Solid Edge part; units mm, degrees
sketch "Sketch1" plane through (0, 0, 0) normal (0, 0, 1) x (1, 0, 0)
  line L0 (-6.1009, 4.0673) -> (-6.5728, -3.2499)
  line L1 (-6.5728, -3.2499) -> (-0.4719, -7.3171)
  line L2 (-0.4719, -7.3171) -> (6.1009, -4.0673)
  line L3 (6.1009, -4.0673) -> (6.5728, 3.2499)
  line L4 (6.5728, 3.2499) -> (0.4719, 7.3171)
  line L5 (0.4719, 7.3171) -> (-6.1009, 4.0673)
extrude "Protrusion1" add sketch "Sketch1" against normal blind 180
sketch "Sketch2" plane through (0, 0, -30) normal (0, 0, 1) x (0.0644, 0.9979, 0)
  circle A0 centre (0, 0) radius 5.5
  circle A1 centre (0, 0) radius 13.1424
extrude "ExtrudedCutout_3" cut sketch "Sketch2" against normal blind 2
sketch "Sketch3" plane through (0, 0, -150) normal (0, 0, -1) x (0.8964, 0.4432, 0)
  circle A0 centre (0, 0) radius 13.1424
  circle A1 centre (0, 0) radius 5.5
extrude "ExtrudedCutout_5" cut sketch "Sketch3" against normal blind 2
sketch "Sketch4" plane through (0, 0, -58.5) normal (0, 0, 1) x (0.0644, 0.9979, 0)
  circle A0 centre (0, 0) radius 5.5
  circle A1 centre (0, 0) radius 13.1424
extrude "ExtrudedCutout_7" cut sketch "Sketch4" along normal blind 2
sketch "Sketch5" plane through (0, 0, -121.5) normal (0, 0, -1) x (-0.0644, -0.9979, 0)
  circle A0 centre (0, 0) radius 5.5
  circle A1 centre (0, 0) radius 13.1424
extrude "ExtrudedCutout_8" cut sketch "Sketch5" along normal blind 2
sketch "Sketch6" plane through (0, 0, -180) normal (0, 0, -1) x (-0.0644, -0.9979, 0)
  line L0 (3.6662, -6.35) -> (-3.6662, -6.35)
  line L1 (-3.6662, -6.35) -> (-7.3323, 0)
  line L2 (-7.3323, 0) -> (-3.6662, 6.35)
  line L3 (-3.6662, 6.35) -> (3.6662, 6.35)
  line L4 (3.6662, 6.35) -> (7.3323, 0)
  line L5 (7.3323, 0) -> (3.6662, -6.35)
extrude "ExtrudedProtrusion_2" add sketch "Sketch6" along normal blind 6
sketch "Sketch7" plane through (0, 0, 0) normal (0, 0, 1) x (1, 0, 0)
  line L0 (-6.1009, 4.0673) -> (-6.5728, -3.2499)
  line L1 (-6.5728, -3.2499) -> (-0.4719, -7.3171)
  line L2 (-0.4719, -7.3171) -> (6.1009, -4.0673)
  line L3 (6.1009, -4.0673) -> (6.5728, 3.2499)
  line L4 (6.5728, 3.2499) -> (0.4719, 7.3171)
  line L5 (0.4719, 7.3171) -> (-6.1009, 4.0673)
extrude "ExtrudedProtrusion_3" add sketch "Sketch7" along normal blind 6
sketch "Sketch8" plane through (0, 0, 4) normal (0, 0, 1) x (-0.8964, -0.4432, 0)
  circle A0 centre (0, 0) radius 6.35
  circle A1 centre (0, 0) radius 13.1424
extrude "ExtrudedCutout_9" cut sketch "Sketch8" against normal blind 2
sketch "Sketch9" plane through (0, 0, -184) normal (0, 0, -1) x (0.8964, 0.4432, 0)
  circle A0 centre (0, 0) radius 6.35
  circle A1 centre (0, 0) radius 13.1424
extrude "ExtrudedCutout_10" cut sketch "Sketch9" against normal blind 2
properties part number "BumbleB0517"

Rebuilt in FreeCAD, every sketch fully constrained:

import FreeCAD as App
import Part
import Sketcher

V = App.Vector
Q = App.Units.Quantity


def add_polygon(sketch, points):
    """Adds a closed chain of lines whose ends are joined by coincident constraints."""
    first, n = sketch.GeometryCount, len(points)
    for a, b in zip(points, points[1:] + points[:1]):
        sketch.addGeometry(Part.LineSegment(App.Vector(*a, 0), App.Vector(*b, 0)), False)
    for i in range(n):
        sketch.addConstraint(Sketcher.Constraint("Coincident", first + i, 2, first + (i + 1) % n, 1))

doc = App.newDocument("Part")
body = doc.addObject("PartDesign::Body", "Body")

# Sketch on XY plane
sketch1 = body.newObject("Sketcher::SketchObject", "Sketch")
sketch1.AttachmentSupport = (doc.getObject("XY_Plane"), [""])
sketch1.MapMode = "FlatFace"
add_polygon(sketch1, [(0, 7), (-6, 4), (-7, -3), (0, -7), (6, -4), (7, 3)])  # lines 0-5
sketch1.addConstraint(Sketcher.Constraint("Symmetric", 0, 2, 3, 2, -1, 1))
sketch1.addConstraint(Sketcher.Constraint("Symmetric", 1, 2, 4, 2, -1, 1))
sketch1.addConstraint(Sketcher.Constraint("Symmetric", 2, 2, 5, 2, -1, 1))
sketch1.addConstraint(Sketcher.Constraint("Equal", 0, 1))
sketch1.addConstraint(Sketcher.Constraint("Equal", 1, 2))
sketch1.addConstraint(Sketcher.Constraint("Angle", 0, Q("-153.6908 deg")))
sketch1.addConstraint(Sketcher.Constraint("Angle", 1, Q("-93.69 deg")))
sketch1.addConstraint(Sketcher.Constraint("Angle", 2, Q("-33.6896 deg")))
sketch1.addConstraint(Sketcher.Constraint("DistanceY", 1, 2, -1, 1, Q("3.25 mm")))
pad1 = body.newObject("PartDesign::Pad", "Pad")
pad1.Profile = sketch1
pad1.Length = 180
pad1.Reversed = True

# Sketch on XY plane
sketch2 = body.newObject("Sketcher::SketchObject", "Sketch001")
sketch2.AttachmentSupport = (doc.getObject("XY_Plane"), [""])
sketch2.MapMode = "FlatFace"
sketch2.AttachmentOffset = App.Placement(V(0, 0, -30), App.Rotation())
sketch2.addGeometry(Part.Circle(V(0, 0, 0), V(0, 0, 1), 13), False)
sketch2.addGeometry(Part.Circle(V(0, 0, 0), V(0, 0, 1), 6), False)
sketch2.addConstraint(Sketcher.Constraint("Coincident", 0, 3, -1, 1))
sketch2.addConstraint(Sketcher.Constraint("Coincident", 1, 3, -1, 1))
sketch2.addConstraint(Sketcher.Constraint("Diameter", 1, Q("11 mm")))
sketch2.addConstraint(Sketcher.Constraint("Diameter", 0, Q("26.2848 mm")))
pocket1 = body.newObject("PartDesign::Pocket", "Pocket")
pocket1.Profile = sketch2
pocket1.Length = 2

# Sketch on XY plane
sketch3 = body.newObject("Sketcher::SketchObject", "Sketch002")
sketch3.AttachmentSupport = (doc.getObject("XY_Plane"), [""])
sketch3.MapMode = "FlatFace"
sketch3.AttachmentOffset = App.Placement(V(0, 0, -150), App.Rotation())
sketch3.addGeometry(Part.Circle(V(0, 0, 0), V(0, 0, 1), 13), False)
sketch3.addGeometry(Part.Circle(V(0, 0, 0), V(0, 0, 1), 6), False)
sketch3.addConstraint(Sketcher.Constraint("Coincident", 0, 3, -1, 1))
sketch3.addConstraint(Sketcher.Constraint("Coincident", 1, 3, -1, 1))
sketch3.addConstraint(Sketcher.Constraint("Diameter", 1, Q("11 mm")))
sketch3.addConstraint(Sketcher.Constraint("Diameter", 0, Q("26.2848 mm")))
pocket2 = body.newObject("PartDesign::Pocket", "Pocket001")
pocket2.Profile = sketch3
pocket2.Length = 2
pocket2.Reversed = True

# Sketch on XY plane
sketch4 = body.newObject("Sketcher::SketchObject", "Sketch003")
sketch4.AttachmentSupport = (doc.getObject("XY_Plane"), [""])
sketch4.MapMode = "FlatFace"
sketch4.AttachmentOffset = App.Placement(V(0, 0, -58.5), App.Rotation())
sketch4.addGeometry(Part.Circle(V(0, 0, 0), V(0, 0, 1), 13), False)
sketch4.addGeometry(Part.Circle(V(0, 0, 0), V(0, 0, 1), 6), False)
sketch4.addConstraint(Sketcher.Constraint("Coincident", 0, 3, -1, 1))
sketch4.addConstraint(Sketcher.Constraint("Coincident", 1, 3, -1, 1))
sketch4.addConstraint(Sketcher.Constraint("Diameter", 1, Q("11 mm")))
sketch4.addConstraint(Sketcher.Constraint("Diameter", 0, Q("26.2848 mm")))
pocket3 = body.newObject("PartDesign::Pocket", "Pocket002")
pocket3.Profile = sketch4
pocket3.Length = 2
pocket3.Reversed = True

# Sketch on XY plane
sketch5 = body.newObject("Sketcher::SketchObject", "Sketch004")
sketch5.AttachmentSupport = (doc.getObject("XY_Plane"), [""])
sketch5.MapMode = "FlatFace"
sketch5.AttachmentOffset = App.Placement(V(0, 0, -121.5), App.Rotation())
sketch5.addGeometry(Part.Circle(V(0, 0, 0), V(0, 0, 1), 13), False)
sketch5.addGeometry(Part.Circle(V(0, 0, 0), V(0, 0, 1), 6), False)
sketch5.addConstraint(Sketcher.Constraint("Coincident", 0, 3, -1, 1))
sketch5.addConstraint(Sketcher.Constraint("Coincident", 1, 3, -1, 1))
sketch5.addConstraint(Sketcher.Constraint("Diameter", 1, Q("11 mm")))
sketch5.addConstraint(Sketcher.Constraint("Diameter", 0, Q("26.2848 mm")))
pocket4 = body.newObject("PartDesign::Pocket", "Pocket003")
pocket4.Profile = sketch5
pocket4.Length = 2

# Sketch on XY plane
sketch6 = body.newObject("Sketcher::SketchObject", "Sketch005")
sketch6.AttachmentSupport = (doc.getObject("XY_Plane"), [""])
sketch6.MapMode = "FlatFace"
sketch6.AttachmentOffset = App.Placement(V(0, 0, -180), App.Rotation())
add_polygon(sketch6, [(7, 3), (6, -4), (0, -7), (-7, -3), (-6, 4), (0, 7)])  # lines 0-5
sketch6.addConstraint(Sketcher.Constraint("Symmetric", 0, 2, 3, 2, -1, 1))
sketch6.addConstraint(Sketcher.Constraint("Symmetric", 1, 2, 4, 2, -1, 1))
sketch6.addConstraint(Sketcher.Constraint("Symmetric", 2, 2, 5, 2, -1, 1))
sketch6.addConstraint(Sketcher.Constraint("Equal", 0, 1))
sketch6.addConstraint(Sketcher.Constraint("Equal", 1, 2))
sketch6.addConstraint(Sketcher.Constraint("DistanceY", 1, 2, -1, 1, Q("7.317 mm")))
sketch6.addConstraint(Sketcher.Constraint("DistanceX", 2, 2, -1, 1, Q("6.573 mm")))
sketch6.addConstraint(Sketcher.Constraint("DistanceX", 1, 2, 0, 2, Q("6.573 mm")))
sketch6.addConstraint(Sketcher.Constraint("DistanceY", 0, 2, 2, 2, Q("0.818 mm")))
pad2 = body.newObject("PartDesign::Pad", "Pad001")
pad2.Profile = sketch6
pad2.Length = 6
pad2.Reversed = True

# Sketch on XY plane
sketch7 = body.newObject("Sketcher::SketchObject", "Sketch006")
sketch7.AttachmentSupport = (doc.getObject("XY_Plane"), [""])
sketch7.MapMode = "FlatFace"
add_polygon(sketch7, [(0, 7), (-6, 4), (-7, -3), (0, -7), (6, -4), (7, 3)])  # lines 0-5
sketch7.addConstraint(Sketcher.Constraint("Symmetric", 0, 2, 3, 2, -1, 1))
sketch7.addConstraint(Sketcher.Constraint("Symmetric", 1, 2, 4, 2, -1, 1))
sketch7.addConstraint(Sketcher.Constraint("Symmetric", 2, 2, 5, 2, -1, 1))
sketch7.addConstraint(Sketcher.Constraint("Equal", 0, 1))
sketch7.addConstraint(Sketcher.Constraint("Equal", 1, 2))
sketch7.addConstraint(Sketcher.Constraint("Angle", 0, Q("-153.6908 deg")))
sketch7.addConstraint(Sketcher.Constraint("Angle", 1, Q("-93.69 deg")))
sketch7.addConstraint(Sketcher.Constraint("Angle", 2, Q("-33.6896 deg")))
sketch7.addConstraint(Sketcher.Constraint("DistanceY", 1, 2, -1, 1, Q("3.25 mm")))
pad3 = body.newObject("PartDesign::Pad", "Pad002")
pad3.Profile = sketch7
pad3.Length = 6

# Sketch on XY plane
sketch8 = body.newObject("Sketcher::SketchObject", "Sketch007")
sketch8.AttachmentSupport = (doc.getObject("XY_Plane"), [""])
sketch8.MapMode = "FlatFace"
sketch8.AttachmentOffset = App.Placement(V(0, 0, 4), App.Rotation())
sketch8.addGeometry(Part.Circle(V(0, 0, 0), V(0, 0, 1), 13), False)
sketch8.addGeometry(Part.Circle(V(0, 0, 0), V(0, 0, 1), 6), False)
sketch8.addConstraint(Sketcher.Constraint("Coincident", 0, 3, -1, 1))
sketch8.addConstraint(Sketcher.Constraint("Coincident", 1, 3, -1, 1))
sketch8.addConstraint(Sketcher.Constraint("Diameter", 1, Q("12.7 mm")))
sketch8.addConstraint(Sketcher.Constraint("Diameter", 0, Q("26.2848 mm")))
pocket5 = body.newObject("PartDesign::Pocket", "Pocket004")
pocket5.Profile = sketch8
pocket5.Length = 2

# Sketch on XY plane
sketch9 = body.newObject("Sketcher::SketchObject", "Sketch008")
sketch9.AttachmentSupport = (doc.getObject("XY_Plane"), [""])
sketch9.MapMode = "FlatFace"
sketch9.AttachmentOffset = App.Placement(V(0, 0, -184), App.Rotation())
sketch9.addGeometry(Part.Circle(V(0, 0, 0), V(0, 0, 1), 13), False)
sketch9.addGeometry(Part.Circle(V(0, 0, 0), V(0, 0, 1), 6), False)
sketch9.addConstraint(Sketcher.Constraint("Coincident", 0, 3, -1, 1))
sketch9.addConstraint(Sketcher.Constraint("Coincident", 1, 3, -1, 1))
sketch9.addConstraint(Sketcher.Constraint("Diameter", 1, Q("12.7 mm")))
sketch9.addConstraint(Sketcher.Constraint("Diameter", 0, Q("26.2848 mm")))
pocket6 = body.newObject("PartDesign::Pocket", "Pocket005")
pocket6.Profile = sketch9
pocket6.Length = 2
pocket6.Reversed = True

doc.recompute()
